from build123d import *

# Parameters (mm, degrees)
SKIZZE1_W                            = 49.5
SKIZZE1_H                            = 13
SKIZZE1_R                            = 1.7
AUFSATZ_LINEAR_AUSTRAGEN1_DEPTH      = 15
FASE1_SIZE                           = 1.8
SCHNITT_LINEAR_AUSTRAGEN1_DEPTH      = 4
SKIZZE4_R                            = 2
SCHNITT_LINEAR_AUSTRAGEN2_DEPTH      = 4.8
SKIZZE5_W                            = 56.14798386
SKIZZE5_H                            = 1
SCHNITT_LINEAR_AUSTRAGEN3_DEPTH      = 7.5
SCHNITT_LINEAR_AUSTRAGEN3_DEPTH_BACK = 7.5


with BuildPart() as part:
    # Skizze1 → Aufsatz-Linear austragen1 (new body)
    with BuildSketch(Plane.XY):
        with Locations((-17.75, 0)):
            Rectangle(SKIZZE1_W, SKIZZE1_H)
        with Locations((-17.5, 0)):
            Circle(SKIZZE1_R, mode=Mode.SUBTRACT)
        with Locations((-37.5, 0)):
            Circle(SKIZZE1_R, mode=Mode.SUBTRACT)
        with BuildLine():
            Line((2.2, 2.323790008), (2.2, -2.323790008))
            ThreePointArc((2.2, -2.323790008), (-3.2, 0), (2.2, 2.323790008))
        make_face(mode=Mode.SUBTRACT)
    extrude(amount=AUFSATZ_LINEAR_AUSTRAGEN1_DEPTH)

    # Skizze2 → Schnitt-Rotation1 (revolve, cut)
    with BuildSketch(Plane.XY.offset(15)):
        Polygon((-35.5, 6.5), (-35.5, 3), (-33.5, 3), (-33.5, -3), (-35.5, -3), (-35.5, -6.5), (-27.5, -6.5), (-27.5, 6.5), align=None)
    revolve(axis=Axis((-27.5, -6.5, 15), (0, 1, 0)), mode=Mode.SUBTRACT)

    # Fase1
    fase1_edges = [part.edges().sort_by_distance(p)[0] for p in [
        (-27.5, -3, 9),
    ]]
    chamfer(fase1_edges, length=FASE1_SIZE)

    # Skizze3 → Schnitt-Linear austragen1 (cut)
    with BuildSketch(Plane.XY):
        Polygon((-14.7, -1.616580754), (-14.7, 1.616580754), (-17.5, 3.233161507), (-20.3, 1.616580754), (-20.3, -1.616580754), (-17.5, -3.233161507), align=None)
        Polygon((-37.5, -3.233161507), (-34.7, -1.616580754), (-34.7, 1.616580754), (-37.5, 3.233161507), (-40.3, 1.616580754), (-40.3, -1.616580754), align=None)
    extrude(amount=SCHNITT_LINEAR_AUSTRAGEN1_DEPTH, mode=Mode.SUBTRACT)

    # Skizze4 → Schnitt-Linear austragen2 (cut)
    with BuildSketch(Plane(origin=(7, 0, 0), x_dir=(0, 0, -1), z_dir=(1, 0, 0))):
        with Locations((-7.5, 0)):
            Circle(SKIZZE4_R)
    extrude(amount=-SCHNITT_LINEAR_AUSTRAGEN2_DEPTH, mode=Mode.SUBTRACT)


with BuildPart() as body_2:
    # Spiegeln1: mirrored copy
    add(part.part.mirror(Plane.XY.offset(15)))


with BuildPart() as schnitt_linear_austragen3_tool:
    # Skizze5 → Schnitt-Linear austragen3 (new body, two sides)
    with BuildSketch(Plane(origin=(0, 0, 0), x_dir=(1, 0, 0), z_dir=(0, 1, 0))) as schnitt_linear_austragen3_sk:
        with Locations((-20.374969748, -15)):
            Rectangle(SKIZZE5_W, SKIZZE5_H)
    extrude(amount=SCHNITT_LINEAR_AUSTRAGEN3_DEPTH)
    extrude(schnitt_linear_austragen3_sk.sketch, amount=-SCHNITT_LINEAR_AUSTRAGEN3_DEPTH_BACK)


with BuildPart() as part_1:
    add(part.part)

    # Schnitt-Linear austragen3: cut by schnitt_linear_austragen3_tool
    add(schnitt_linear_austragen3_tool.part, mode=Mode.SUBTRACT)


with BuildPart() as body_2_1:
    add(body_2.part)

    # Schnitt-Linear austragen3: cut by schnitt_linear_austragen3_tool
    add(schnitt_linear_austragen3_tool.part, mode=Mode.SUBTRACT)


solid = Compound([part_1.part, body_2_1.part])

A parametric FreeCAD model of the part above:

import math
import FreeCAD as App
import Part
import Sketcher
from FreeCAD import Vector
Q = App.Units.Quantity


def edges_at(feature, points):
    """Names of the edges that pass closest to the given points."""
    edges = feature.Shape.Edges
    near = lambda p: min(range(len(edges)), key=lambda i: edges[i].distToShape(Part.Vertex(*p))[0])
    return sorted({f"Edge{near(p) + 1}" for p in points})


def add_polygon(sketch, points):
    """Adds a closed chain of lines whose ends are joined by coincident constraints."""
    first, n = sketch.GeometryCount, len(points)
    for a, b in zip(points, points[1:] + points[:1]):
        sketch.addGeometry(Part.LineSegment(App.Vector(*a, 0), App.Vector(*b, 0)), False)
    for i in range(n):
        sketch.addConstraint(Sketcher.Constraint("Coincident", first + i, 2, first + (i + 1) % n, 1))

doc = App.newDocument("Part")
body = doc.addObject("PartDesign::Body", "Body")

# Sketch on XY plane
sketch1 = body.newObject("Sketcher::SketchObject", "Sketch")
sketch1.AttachmentSupport = (doc.getObject("XY_Plane"), [""])
sketch1.MapMode = "FlatFace"
add_polygon(sketch1, [(-42.5, 6.5), (-42.5, -6.5), (7, -6.5), (7, 6.5)])  # lines 0-3
sketch1.addGeometry(Part.Circle(Vector(-37.5, 0, 0), Vector(0, 0, 1), 1.7), False)  # 4
sketch1.addGeometry(Part.Circle(Vector(-17.5, 0, 0), Vector(0, 0, 1), 1.7), False)  # 5
sketch1.addGeometry(Part.ArcOfCircle(Part.Circle(Vector(0, 0, 0), Vector(0, 0, 1), 3.2), math.radians(47), math.radians(313)), False)  # 6
sketch1.addGeometry(Part.LineSegment(Vector(2.2, 2.3, 0), Vector(2.2, -2.3, 0)), False)  # 7
sketch1.addConstraint([
    Sketcher.Constraint("Coincident", 6, 1, 7, 1),
    Sketcher.Constraint("Coincident", 7, 2, 6, 2),
    Sketcher.Constraint("Vertical", 0),
    Sketcher.Constraint("Horizontal", 1),
    Sketcher.Constraint("Vertical", 2),
    Sketcher.Constraint("Horizontal", 3),
    Sketcher.Constraint("Vertical", 7),
    Sketcher.Constraint("Coincident", 6, 3, -1, 1),
    Sketcher.Constraint("Equal", 4, 5),
    Sketcher.Constraint("PointOnObject", 4, 3, -1),
    Sketcher.Constraint("PointOnObject", 5, 3, -1),
    Sketcher.Constraint("Diameter", 4, Q("3.4 mm")),
    Sketcher.Constraint("Radius", 6, Q("3.2 mm")),
    Sketcher.Constraint("DistanceY", 0, 2, 0, 1, Q("13 mm")),
    Sketcher.Constraint("DistanceX", 1, 1, 1, 2, Q("49.5 mm")),
    Sketcher.Constraint("DistanceX", -1, 1, 1, 2, Q("7 mm")),
    Sketcher.Constraint("DistanceX", 4, 3, 5, 3, Q("20 mm")),
    Sketcher.Constraint("DistanceX", 0, 2, 4, 3, Q("5 mm")),
    Sketcher.Constraint("DistanceY", 0, 2, -1, 1, Q("6.5 mm")),
    Sketcher.Constraint("DistanceX", -1, 1, 6, 1, Q("2.2 mm")),
])
pad1 = body.newObject("PartDesign::Pad", "Pad")
pad1.Profile = sketch1
pad1.Length = 15

# Sketch on XY plane
sketch2 = body.newObject("Sketcher::SketchObject", "Sketch001")
sketch2.AttachmentSupport = (doc.getObject("XY_Plane"), [""])
sketch2.MapMode = "FlatFace"
sketch2.AttachmentOffset = App.Placement(Vector(0, 0, 15), App.Rotation())
add_polygon(sketch2, [(-35.5, 6.5), (-35.5, 3), (-33.5, 3), (-33.5, -3), (-35.5, -3), (-35.5, -6.5), (-27.5, -6.5), (-27.5, 6.5)])  # lines 0-7
sketch2.addGeometry(Part.LineSegment(Vector(-27.5, -6.5, 0), Vector(-27.5, 6.5, 0)), True)  # axis
sketch2.addConstraint([
    Sketcher.Constraint("Vertical", 0),
    Sketcher.Constraint("Horizontal", 1),
    Sketcher.Constraint("Vertical", 2),
    Sketcher.Constraint("Horizontal", 3),
    Sketcher.Constraint("Vertical", 4),
    Sketcher.Constraint("Horizontal", 5),
    Sketcher.Constraint("Vertical", 6),
    Sketcher.Constraint("Horizontal", 7),
    Sketcher.Constraint("Vertical", 8),
    Sketcher.Constraint("Coincident", 8, 1, 5, 2),
    Sketcher.Constraint("Symmetric", 0, 2, 3, 2, -1),
    Sketcher.Constraint("Horizontal", 7, 2, 8, 2),
    Sketcher.Constraint("Equal", 0, 4),
    Sketcher.Constraint("DistanceX", 1, 1, 1, 2, Q("2 mm")),
    Sketcher.Constraint("DistanceX", 5, 1, 5, 2, Q("8 mm")),
    Sketcher.Constraint("DistanceY", 2, 2, 2, 1, Q("6 mm")),
    Sketcher.Constraint("DistanceY", 6, 1, 6, 2, Q("13 mm")),
    Sketcher.Constraint("DistanceX", 0, 2, -1, 1, Q("35.5 mm")),
])
groove = body.newObject("PartDesign::Groove", "Groove")
groove.Profile = sketch2
groove.ReferenceAxis = (sketch2, ["Axis0"])
groove.Angle = 360
doc.recompute()

chamfer = body.newObject("PartDesign::Chamfer", "Chamfer")
chamfer.Base = (groove, edges_at(groove, [(-27.5, -3, 9)]))
chamfer.Size = 1.8

# Sketch on XY plane
sketch3 = body.newObject("Sketcher::SketchObject", "Sketch002")
sketch3.AttachmentSupport = (doc.getObject("XY_Plane"), [""])
sketch3.MapMode = "FlatFace"
add_polygon(sketch3, [(-14.7, -1.6), (-14.7, 1.6), (-17.5, 3.2), (-20.3, 1.6), (-20.3, -1.6), (-17.5, -3.2)])  # lines 0-5
add_polygon(sketch3, [(-37.5, -3.2), (-34.7, -1.6), (-34.7, 1.6), (-37.5, 3.2), (-40.3, 1.6), (-40.3, -1.6)])  # lines 6-11
sketch3.addConstraint([
    Sketcher.Constraint("Vertical", 0),
    Sketcher.Constraint("Vertical", 3),
    Sketcher.Constraint("Vertical", 7),
    Sketcher.Constraint("Vertical", 10),
    Sketcher.Constraint("Symmetric", 1, 2, 4, 2, -1),
    Sketcher.Constraint("Symmetric", 8, 2, 11, 2, -1),
    Sketcher.Constraint("Parallel", 1, 4),
    Sketcher.Constraint("Parallel", 2, 5),
    Sketcher.Constraint("Parallel", 5, 6),
    Sketcher.Constraint("Parallel", 4, 8),
    Sketcher.Constraint("Parallel", 6, 9),
    Sketcher.Constraint("Parallel", 8, 11),
    Sketcher.Constraint("Horizontal", 0, 2, 2, 2),
    Sketcher.Constraint("Horizontal", 3, 2, 5, 2),
    Sketcher.Constraint("Horizontal", 5, 2, 6, 2),
    Sketcher.Constraint("Horizontal", 1, 2, 8, 2),
    Sketcher.Constraint("Horizontal", 7, 2, 9, 2),
    Sketcher.Constraint("Angle", 1, Q("150 deg")),
    Sketcher.Constraint("DistanceX", 6, 2, 5, 2, Q("20 mm")),
    Sketcher.Constraint("DistanceX", 0, 2, -1, 1, Q("14.7 mm")),
    Sketcher.Constraint("DistanceX", 1, 2, -1, 1, Q("17.5 mm")),
    Sketcher.Constraint("DistanceY", 0, 1, 0, 2, Q("3.233162 mm")),
])
pocket1 = body.newObject("PartDesign::Pocket", "Pocket")
pocket1.Profile = sketch3
pocket1.Length = 4
pocket1.Reversed = True

# Sketch on YZ plane
sketch4 = body.newObject("Sketcher::SketchObject", "Sketch003")
sketch4.AttachmentSupport = (doc.getObject("YZ_Plane"), [""])
sketch4.MapMode = "FlatFace"
sketch4.AttachmentOffset = App.Placement(Vector(0, 0, 7), App.Rotation())
sketch4.addGeometry(Part.Circle(Vector(0, 7.5, 0), Vector(0, 0, 1), 2), False)
sketch4.addConstraint([
    Sketcher.Constraint("PointOnObject", 0, 3, -2),
    Sketcher.Constraint("Diameter", 0, Q("4 mm")),
    Sketcher.Constraint("DistanceY", -1, 1, 0, 3, Q("7.5 mm")),
])
pocket2 = body.newObject("PartDesign::Pocket", "Pocket001")
pocket2.Profile = sketch4
pocket2.Length = 4.8
body2 = doc.addObject("PartDesign::Body", "Body001")
doc.recompute()

mirroring = doc.addObject("Part::Mirroring", "Mirroring")
mirroring.Source = body
mirroring.Base = Vector(0, 0, 15)
mirroring.Normal = Vector(0, 0, 1)
body2.BaseFeature = mirroring
doc.recompute()
body3 = doc.addObject("PartDesign::Body", "Body002")

# Sketch on XZ plane
sketch5 = body3.newObject("Sketcher::SketchObject", "Sketch004")
sketch5.AttachmentSupport = (doc.getObject("XZ_Plane002"), [""])
sketch5.MapMode = "FlatFace"
add_polygon(sketch5, [(-48.4, 14.5), (-48.4, 15.5), (7.7, 15.5), (7.7, 14.5)])  # lines 0-3
sketch5.addConstraint([
    Sketcher.Constraint("Vertical", 0),
    Sketcher.Constraint("Horizontal", 1),
    Sketcher.Constraint("Vertical", 2),
    Sketcher.Constraint("Horizontal", 3),
    Sketcher.Constraint("DistanceY", 0, 1, 0, 2, Q("1 mm")),
    Sketcher.Constraint("DistanceY", -1, 1, 0, 2, Q("15.5 mm")),
    Sketcher.Constraint("DistanceX", 1, 1, 1, 2, Q("56.147984 mm")),
    Sketcher.Constraint("DistanceX", 0, 2, -1, 1, Q("48.448962 mm")),
])
pad2 = body3.newObject("PartDesign::Pad", "Pad001")
pad2.Profile = sketch5
pad2.Type = "TwoLengths"
pad2.Length = 7.5
pad2.Length2 = 7.5
pad2.Reversed = True
doc.recompute()

body4 = doc.addObject("PartDesign::Body", "Body003")
body4.BaseFeature = body3
boolean = body.newObject("PartDesign::Boolean", "Boolean")
boolean.Type = "Cut"
boolean.addObjects([body4])
doc.recompute()

boolean2 = body2.newObject("PartDesign::Boolean", "Boolean001")
boolean2.Type = "Cut"
boolean2.addObjects([body3])
mirroring.Visibility = False

doc.recompute()
